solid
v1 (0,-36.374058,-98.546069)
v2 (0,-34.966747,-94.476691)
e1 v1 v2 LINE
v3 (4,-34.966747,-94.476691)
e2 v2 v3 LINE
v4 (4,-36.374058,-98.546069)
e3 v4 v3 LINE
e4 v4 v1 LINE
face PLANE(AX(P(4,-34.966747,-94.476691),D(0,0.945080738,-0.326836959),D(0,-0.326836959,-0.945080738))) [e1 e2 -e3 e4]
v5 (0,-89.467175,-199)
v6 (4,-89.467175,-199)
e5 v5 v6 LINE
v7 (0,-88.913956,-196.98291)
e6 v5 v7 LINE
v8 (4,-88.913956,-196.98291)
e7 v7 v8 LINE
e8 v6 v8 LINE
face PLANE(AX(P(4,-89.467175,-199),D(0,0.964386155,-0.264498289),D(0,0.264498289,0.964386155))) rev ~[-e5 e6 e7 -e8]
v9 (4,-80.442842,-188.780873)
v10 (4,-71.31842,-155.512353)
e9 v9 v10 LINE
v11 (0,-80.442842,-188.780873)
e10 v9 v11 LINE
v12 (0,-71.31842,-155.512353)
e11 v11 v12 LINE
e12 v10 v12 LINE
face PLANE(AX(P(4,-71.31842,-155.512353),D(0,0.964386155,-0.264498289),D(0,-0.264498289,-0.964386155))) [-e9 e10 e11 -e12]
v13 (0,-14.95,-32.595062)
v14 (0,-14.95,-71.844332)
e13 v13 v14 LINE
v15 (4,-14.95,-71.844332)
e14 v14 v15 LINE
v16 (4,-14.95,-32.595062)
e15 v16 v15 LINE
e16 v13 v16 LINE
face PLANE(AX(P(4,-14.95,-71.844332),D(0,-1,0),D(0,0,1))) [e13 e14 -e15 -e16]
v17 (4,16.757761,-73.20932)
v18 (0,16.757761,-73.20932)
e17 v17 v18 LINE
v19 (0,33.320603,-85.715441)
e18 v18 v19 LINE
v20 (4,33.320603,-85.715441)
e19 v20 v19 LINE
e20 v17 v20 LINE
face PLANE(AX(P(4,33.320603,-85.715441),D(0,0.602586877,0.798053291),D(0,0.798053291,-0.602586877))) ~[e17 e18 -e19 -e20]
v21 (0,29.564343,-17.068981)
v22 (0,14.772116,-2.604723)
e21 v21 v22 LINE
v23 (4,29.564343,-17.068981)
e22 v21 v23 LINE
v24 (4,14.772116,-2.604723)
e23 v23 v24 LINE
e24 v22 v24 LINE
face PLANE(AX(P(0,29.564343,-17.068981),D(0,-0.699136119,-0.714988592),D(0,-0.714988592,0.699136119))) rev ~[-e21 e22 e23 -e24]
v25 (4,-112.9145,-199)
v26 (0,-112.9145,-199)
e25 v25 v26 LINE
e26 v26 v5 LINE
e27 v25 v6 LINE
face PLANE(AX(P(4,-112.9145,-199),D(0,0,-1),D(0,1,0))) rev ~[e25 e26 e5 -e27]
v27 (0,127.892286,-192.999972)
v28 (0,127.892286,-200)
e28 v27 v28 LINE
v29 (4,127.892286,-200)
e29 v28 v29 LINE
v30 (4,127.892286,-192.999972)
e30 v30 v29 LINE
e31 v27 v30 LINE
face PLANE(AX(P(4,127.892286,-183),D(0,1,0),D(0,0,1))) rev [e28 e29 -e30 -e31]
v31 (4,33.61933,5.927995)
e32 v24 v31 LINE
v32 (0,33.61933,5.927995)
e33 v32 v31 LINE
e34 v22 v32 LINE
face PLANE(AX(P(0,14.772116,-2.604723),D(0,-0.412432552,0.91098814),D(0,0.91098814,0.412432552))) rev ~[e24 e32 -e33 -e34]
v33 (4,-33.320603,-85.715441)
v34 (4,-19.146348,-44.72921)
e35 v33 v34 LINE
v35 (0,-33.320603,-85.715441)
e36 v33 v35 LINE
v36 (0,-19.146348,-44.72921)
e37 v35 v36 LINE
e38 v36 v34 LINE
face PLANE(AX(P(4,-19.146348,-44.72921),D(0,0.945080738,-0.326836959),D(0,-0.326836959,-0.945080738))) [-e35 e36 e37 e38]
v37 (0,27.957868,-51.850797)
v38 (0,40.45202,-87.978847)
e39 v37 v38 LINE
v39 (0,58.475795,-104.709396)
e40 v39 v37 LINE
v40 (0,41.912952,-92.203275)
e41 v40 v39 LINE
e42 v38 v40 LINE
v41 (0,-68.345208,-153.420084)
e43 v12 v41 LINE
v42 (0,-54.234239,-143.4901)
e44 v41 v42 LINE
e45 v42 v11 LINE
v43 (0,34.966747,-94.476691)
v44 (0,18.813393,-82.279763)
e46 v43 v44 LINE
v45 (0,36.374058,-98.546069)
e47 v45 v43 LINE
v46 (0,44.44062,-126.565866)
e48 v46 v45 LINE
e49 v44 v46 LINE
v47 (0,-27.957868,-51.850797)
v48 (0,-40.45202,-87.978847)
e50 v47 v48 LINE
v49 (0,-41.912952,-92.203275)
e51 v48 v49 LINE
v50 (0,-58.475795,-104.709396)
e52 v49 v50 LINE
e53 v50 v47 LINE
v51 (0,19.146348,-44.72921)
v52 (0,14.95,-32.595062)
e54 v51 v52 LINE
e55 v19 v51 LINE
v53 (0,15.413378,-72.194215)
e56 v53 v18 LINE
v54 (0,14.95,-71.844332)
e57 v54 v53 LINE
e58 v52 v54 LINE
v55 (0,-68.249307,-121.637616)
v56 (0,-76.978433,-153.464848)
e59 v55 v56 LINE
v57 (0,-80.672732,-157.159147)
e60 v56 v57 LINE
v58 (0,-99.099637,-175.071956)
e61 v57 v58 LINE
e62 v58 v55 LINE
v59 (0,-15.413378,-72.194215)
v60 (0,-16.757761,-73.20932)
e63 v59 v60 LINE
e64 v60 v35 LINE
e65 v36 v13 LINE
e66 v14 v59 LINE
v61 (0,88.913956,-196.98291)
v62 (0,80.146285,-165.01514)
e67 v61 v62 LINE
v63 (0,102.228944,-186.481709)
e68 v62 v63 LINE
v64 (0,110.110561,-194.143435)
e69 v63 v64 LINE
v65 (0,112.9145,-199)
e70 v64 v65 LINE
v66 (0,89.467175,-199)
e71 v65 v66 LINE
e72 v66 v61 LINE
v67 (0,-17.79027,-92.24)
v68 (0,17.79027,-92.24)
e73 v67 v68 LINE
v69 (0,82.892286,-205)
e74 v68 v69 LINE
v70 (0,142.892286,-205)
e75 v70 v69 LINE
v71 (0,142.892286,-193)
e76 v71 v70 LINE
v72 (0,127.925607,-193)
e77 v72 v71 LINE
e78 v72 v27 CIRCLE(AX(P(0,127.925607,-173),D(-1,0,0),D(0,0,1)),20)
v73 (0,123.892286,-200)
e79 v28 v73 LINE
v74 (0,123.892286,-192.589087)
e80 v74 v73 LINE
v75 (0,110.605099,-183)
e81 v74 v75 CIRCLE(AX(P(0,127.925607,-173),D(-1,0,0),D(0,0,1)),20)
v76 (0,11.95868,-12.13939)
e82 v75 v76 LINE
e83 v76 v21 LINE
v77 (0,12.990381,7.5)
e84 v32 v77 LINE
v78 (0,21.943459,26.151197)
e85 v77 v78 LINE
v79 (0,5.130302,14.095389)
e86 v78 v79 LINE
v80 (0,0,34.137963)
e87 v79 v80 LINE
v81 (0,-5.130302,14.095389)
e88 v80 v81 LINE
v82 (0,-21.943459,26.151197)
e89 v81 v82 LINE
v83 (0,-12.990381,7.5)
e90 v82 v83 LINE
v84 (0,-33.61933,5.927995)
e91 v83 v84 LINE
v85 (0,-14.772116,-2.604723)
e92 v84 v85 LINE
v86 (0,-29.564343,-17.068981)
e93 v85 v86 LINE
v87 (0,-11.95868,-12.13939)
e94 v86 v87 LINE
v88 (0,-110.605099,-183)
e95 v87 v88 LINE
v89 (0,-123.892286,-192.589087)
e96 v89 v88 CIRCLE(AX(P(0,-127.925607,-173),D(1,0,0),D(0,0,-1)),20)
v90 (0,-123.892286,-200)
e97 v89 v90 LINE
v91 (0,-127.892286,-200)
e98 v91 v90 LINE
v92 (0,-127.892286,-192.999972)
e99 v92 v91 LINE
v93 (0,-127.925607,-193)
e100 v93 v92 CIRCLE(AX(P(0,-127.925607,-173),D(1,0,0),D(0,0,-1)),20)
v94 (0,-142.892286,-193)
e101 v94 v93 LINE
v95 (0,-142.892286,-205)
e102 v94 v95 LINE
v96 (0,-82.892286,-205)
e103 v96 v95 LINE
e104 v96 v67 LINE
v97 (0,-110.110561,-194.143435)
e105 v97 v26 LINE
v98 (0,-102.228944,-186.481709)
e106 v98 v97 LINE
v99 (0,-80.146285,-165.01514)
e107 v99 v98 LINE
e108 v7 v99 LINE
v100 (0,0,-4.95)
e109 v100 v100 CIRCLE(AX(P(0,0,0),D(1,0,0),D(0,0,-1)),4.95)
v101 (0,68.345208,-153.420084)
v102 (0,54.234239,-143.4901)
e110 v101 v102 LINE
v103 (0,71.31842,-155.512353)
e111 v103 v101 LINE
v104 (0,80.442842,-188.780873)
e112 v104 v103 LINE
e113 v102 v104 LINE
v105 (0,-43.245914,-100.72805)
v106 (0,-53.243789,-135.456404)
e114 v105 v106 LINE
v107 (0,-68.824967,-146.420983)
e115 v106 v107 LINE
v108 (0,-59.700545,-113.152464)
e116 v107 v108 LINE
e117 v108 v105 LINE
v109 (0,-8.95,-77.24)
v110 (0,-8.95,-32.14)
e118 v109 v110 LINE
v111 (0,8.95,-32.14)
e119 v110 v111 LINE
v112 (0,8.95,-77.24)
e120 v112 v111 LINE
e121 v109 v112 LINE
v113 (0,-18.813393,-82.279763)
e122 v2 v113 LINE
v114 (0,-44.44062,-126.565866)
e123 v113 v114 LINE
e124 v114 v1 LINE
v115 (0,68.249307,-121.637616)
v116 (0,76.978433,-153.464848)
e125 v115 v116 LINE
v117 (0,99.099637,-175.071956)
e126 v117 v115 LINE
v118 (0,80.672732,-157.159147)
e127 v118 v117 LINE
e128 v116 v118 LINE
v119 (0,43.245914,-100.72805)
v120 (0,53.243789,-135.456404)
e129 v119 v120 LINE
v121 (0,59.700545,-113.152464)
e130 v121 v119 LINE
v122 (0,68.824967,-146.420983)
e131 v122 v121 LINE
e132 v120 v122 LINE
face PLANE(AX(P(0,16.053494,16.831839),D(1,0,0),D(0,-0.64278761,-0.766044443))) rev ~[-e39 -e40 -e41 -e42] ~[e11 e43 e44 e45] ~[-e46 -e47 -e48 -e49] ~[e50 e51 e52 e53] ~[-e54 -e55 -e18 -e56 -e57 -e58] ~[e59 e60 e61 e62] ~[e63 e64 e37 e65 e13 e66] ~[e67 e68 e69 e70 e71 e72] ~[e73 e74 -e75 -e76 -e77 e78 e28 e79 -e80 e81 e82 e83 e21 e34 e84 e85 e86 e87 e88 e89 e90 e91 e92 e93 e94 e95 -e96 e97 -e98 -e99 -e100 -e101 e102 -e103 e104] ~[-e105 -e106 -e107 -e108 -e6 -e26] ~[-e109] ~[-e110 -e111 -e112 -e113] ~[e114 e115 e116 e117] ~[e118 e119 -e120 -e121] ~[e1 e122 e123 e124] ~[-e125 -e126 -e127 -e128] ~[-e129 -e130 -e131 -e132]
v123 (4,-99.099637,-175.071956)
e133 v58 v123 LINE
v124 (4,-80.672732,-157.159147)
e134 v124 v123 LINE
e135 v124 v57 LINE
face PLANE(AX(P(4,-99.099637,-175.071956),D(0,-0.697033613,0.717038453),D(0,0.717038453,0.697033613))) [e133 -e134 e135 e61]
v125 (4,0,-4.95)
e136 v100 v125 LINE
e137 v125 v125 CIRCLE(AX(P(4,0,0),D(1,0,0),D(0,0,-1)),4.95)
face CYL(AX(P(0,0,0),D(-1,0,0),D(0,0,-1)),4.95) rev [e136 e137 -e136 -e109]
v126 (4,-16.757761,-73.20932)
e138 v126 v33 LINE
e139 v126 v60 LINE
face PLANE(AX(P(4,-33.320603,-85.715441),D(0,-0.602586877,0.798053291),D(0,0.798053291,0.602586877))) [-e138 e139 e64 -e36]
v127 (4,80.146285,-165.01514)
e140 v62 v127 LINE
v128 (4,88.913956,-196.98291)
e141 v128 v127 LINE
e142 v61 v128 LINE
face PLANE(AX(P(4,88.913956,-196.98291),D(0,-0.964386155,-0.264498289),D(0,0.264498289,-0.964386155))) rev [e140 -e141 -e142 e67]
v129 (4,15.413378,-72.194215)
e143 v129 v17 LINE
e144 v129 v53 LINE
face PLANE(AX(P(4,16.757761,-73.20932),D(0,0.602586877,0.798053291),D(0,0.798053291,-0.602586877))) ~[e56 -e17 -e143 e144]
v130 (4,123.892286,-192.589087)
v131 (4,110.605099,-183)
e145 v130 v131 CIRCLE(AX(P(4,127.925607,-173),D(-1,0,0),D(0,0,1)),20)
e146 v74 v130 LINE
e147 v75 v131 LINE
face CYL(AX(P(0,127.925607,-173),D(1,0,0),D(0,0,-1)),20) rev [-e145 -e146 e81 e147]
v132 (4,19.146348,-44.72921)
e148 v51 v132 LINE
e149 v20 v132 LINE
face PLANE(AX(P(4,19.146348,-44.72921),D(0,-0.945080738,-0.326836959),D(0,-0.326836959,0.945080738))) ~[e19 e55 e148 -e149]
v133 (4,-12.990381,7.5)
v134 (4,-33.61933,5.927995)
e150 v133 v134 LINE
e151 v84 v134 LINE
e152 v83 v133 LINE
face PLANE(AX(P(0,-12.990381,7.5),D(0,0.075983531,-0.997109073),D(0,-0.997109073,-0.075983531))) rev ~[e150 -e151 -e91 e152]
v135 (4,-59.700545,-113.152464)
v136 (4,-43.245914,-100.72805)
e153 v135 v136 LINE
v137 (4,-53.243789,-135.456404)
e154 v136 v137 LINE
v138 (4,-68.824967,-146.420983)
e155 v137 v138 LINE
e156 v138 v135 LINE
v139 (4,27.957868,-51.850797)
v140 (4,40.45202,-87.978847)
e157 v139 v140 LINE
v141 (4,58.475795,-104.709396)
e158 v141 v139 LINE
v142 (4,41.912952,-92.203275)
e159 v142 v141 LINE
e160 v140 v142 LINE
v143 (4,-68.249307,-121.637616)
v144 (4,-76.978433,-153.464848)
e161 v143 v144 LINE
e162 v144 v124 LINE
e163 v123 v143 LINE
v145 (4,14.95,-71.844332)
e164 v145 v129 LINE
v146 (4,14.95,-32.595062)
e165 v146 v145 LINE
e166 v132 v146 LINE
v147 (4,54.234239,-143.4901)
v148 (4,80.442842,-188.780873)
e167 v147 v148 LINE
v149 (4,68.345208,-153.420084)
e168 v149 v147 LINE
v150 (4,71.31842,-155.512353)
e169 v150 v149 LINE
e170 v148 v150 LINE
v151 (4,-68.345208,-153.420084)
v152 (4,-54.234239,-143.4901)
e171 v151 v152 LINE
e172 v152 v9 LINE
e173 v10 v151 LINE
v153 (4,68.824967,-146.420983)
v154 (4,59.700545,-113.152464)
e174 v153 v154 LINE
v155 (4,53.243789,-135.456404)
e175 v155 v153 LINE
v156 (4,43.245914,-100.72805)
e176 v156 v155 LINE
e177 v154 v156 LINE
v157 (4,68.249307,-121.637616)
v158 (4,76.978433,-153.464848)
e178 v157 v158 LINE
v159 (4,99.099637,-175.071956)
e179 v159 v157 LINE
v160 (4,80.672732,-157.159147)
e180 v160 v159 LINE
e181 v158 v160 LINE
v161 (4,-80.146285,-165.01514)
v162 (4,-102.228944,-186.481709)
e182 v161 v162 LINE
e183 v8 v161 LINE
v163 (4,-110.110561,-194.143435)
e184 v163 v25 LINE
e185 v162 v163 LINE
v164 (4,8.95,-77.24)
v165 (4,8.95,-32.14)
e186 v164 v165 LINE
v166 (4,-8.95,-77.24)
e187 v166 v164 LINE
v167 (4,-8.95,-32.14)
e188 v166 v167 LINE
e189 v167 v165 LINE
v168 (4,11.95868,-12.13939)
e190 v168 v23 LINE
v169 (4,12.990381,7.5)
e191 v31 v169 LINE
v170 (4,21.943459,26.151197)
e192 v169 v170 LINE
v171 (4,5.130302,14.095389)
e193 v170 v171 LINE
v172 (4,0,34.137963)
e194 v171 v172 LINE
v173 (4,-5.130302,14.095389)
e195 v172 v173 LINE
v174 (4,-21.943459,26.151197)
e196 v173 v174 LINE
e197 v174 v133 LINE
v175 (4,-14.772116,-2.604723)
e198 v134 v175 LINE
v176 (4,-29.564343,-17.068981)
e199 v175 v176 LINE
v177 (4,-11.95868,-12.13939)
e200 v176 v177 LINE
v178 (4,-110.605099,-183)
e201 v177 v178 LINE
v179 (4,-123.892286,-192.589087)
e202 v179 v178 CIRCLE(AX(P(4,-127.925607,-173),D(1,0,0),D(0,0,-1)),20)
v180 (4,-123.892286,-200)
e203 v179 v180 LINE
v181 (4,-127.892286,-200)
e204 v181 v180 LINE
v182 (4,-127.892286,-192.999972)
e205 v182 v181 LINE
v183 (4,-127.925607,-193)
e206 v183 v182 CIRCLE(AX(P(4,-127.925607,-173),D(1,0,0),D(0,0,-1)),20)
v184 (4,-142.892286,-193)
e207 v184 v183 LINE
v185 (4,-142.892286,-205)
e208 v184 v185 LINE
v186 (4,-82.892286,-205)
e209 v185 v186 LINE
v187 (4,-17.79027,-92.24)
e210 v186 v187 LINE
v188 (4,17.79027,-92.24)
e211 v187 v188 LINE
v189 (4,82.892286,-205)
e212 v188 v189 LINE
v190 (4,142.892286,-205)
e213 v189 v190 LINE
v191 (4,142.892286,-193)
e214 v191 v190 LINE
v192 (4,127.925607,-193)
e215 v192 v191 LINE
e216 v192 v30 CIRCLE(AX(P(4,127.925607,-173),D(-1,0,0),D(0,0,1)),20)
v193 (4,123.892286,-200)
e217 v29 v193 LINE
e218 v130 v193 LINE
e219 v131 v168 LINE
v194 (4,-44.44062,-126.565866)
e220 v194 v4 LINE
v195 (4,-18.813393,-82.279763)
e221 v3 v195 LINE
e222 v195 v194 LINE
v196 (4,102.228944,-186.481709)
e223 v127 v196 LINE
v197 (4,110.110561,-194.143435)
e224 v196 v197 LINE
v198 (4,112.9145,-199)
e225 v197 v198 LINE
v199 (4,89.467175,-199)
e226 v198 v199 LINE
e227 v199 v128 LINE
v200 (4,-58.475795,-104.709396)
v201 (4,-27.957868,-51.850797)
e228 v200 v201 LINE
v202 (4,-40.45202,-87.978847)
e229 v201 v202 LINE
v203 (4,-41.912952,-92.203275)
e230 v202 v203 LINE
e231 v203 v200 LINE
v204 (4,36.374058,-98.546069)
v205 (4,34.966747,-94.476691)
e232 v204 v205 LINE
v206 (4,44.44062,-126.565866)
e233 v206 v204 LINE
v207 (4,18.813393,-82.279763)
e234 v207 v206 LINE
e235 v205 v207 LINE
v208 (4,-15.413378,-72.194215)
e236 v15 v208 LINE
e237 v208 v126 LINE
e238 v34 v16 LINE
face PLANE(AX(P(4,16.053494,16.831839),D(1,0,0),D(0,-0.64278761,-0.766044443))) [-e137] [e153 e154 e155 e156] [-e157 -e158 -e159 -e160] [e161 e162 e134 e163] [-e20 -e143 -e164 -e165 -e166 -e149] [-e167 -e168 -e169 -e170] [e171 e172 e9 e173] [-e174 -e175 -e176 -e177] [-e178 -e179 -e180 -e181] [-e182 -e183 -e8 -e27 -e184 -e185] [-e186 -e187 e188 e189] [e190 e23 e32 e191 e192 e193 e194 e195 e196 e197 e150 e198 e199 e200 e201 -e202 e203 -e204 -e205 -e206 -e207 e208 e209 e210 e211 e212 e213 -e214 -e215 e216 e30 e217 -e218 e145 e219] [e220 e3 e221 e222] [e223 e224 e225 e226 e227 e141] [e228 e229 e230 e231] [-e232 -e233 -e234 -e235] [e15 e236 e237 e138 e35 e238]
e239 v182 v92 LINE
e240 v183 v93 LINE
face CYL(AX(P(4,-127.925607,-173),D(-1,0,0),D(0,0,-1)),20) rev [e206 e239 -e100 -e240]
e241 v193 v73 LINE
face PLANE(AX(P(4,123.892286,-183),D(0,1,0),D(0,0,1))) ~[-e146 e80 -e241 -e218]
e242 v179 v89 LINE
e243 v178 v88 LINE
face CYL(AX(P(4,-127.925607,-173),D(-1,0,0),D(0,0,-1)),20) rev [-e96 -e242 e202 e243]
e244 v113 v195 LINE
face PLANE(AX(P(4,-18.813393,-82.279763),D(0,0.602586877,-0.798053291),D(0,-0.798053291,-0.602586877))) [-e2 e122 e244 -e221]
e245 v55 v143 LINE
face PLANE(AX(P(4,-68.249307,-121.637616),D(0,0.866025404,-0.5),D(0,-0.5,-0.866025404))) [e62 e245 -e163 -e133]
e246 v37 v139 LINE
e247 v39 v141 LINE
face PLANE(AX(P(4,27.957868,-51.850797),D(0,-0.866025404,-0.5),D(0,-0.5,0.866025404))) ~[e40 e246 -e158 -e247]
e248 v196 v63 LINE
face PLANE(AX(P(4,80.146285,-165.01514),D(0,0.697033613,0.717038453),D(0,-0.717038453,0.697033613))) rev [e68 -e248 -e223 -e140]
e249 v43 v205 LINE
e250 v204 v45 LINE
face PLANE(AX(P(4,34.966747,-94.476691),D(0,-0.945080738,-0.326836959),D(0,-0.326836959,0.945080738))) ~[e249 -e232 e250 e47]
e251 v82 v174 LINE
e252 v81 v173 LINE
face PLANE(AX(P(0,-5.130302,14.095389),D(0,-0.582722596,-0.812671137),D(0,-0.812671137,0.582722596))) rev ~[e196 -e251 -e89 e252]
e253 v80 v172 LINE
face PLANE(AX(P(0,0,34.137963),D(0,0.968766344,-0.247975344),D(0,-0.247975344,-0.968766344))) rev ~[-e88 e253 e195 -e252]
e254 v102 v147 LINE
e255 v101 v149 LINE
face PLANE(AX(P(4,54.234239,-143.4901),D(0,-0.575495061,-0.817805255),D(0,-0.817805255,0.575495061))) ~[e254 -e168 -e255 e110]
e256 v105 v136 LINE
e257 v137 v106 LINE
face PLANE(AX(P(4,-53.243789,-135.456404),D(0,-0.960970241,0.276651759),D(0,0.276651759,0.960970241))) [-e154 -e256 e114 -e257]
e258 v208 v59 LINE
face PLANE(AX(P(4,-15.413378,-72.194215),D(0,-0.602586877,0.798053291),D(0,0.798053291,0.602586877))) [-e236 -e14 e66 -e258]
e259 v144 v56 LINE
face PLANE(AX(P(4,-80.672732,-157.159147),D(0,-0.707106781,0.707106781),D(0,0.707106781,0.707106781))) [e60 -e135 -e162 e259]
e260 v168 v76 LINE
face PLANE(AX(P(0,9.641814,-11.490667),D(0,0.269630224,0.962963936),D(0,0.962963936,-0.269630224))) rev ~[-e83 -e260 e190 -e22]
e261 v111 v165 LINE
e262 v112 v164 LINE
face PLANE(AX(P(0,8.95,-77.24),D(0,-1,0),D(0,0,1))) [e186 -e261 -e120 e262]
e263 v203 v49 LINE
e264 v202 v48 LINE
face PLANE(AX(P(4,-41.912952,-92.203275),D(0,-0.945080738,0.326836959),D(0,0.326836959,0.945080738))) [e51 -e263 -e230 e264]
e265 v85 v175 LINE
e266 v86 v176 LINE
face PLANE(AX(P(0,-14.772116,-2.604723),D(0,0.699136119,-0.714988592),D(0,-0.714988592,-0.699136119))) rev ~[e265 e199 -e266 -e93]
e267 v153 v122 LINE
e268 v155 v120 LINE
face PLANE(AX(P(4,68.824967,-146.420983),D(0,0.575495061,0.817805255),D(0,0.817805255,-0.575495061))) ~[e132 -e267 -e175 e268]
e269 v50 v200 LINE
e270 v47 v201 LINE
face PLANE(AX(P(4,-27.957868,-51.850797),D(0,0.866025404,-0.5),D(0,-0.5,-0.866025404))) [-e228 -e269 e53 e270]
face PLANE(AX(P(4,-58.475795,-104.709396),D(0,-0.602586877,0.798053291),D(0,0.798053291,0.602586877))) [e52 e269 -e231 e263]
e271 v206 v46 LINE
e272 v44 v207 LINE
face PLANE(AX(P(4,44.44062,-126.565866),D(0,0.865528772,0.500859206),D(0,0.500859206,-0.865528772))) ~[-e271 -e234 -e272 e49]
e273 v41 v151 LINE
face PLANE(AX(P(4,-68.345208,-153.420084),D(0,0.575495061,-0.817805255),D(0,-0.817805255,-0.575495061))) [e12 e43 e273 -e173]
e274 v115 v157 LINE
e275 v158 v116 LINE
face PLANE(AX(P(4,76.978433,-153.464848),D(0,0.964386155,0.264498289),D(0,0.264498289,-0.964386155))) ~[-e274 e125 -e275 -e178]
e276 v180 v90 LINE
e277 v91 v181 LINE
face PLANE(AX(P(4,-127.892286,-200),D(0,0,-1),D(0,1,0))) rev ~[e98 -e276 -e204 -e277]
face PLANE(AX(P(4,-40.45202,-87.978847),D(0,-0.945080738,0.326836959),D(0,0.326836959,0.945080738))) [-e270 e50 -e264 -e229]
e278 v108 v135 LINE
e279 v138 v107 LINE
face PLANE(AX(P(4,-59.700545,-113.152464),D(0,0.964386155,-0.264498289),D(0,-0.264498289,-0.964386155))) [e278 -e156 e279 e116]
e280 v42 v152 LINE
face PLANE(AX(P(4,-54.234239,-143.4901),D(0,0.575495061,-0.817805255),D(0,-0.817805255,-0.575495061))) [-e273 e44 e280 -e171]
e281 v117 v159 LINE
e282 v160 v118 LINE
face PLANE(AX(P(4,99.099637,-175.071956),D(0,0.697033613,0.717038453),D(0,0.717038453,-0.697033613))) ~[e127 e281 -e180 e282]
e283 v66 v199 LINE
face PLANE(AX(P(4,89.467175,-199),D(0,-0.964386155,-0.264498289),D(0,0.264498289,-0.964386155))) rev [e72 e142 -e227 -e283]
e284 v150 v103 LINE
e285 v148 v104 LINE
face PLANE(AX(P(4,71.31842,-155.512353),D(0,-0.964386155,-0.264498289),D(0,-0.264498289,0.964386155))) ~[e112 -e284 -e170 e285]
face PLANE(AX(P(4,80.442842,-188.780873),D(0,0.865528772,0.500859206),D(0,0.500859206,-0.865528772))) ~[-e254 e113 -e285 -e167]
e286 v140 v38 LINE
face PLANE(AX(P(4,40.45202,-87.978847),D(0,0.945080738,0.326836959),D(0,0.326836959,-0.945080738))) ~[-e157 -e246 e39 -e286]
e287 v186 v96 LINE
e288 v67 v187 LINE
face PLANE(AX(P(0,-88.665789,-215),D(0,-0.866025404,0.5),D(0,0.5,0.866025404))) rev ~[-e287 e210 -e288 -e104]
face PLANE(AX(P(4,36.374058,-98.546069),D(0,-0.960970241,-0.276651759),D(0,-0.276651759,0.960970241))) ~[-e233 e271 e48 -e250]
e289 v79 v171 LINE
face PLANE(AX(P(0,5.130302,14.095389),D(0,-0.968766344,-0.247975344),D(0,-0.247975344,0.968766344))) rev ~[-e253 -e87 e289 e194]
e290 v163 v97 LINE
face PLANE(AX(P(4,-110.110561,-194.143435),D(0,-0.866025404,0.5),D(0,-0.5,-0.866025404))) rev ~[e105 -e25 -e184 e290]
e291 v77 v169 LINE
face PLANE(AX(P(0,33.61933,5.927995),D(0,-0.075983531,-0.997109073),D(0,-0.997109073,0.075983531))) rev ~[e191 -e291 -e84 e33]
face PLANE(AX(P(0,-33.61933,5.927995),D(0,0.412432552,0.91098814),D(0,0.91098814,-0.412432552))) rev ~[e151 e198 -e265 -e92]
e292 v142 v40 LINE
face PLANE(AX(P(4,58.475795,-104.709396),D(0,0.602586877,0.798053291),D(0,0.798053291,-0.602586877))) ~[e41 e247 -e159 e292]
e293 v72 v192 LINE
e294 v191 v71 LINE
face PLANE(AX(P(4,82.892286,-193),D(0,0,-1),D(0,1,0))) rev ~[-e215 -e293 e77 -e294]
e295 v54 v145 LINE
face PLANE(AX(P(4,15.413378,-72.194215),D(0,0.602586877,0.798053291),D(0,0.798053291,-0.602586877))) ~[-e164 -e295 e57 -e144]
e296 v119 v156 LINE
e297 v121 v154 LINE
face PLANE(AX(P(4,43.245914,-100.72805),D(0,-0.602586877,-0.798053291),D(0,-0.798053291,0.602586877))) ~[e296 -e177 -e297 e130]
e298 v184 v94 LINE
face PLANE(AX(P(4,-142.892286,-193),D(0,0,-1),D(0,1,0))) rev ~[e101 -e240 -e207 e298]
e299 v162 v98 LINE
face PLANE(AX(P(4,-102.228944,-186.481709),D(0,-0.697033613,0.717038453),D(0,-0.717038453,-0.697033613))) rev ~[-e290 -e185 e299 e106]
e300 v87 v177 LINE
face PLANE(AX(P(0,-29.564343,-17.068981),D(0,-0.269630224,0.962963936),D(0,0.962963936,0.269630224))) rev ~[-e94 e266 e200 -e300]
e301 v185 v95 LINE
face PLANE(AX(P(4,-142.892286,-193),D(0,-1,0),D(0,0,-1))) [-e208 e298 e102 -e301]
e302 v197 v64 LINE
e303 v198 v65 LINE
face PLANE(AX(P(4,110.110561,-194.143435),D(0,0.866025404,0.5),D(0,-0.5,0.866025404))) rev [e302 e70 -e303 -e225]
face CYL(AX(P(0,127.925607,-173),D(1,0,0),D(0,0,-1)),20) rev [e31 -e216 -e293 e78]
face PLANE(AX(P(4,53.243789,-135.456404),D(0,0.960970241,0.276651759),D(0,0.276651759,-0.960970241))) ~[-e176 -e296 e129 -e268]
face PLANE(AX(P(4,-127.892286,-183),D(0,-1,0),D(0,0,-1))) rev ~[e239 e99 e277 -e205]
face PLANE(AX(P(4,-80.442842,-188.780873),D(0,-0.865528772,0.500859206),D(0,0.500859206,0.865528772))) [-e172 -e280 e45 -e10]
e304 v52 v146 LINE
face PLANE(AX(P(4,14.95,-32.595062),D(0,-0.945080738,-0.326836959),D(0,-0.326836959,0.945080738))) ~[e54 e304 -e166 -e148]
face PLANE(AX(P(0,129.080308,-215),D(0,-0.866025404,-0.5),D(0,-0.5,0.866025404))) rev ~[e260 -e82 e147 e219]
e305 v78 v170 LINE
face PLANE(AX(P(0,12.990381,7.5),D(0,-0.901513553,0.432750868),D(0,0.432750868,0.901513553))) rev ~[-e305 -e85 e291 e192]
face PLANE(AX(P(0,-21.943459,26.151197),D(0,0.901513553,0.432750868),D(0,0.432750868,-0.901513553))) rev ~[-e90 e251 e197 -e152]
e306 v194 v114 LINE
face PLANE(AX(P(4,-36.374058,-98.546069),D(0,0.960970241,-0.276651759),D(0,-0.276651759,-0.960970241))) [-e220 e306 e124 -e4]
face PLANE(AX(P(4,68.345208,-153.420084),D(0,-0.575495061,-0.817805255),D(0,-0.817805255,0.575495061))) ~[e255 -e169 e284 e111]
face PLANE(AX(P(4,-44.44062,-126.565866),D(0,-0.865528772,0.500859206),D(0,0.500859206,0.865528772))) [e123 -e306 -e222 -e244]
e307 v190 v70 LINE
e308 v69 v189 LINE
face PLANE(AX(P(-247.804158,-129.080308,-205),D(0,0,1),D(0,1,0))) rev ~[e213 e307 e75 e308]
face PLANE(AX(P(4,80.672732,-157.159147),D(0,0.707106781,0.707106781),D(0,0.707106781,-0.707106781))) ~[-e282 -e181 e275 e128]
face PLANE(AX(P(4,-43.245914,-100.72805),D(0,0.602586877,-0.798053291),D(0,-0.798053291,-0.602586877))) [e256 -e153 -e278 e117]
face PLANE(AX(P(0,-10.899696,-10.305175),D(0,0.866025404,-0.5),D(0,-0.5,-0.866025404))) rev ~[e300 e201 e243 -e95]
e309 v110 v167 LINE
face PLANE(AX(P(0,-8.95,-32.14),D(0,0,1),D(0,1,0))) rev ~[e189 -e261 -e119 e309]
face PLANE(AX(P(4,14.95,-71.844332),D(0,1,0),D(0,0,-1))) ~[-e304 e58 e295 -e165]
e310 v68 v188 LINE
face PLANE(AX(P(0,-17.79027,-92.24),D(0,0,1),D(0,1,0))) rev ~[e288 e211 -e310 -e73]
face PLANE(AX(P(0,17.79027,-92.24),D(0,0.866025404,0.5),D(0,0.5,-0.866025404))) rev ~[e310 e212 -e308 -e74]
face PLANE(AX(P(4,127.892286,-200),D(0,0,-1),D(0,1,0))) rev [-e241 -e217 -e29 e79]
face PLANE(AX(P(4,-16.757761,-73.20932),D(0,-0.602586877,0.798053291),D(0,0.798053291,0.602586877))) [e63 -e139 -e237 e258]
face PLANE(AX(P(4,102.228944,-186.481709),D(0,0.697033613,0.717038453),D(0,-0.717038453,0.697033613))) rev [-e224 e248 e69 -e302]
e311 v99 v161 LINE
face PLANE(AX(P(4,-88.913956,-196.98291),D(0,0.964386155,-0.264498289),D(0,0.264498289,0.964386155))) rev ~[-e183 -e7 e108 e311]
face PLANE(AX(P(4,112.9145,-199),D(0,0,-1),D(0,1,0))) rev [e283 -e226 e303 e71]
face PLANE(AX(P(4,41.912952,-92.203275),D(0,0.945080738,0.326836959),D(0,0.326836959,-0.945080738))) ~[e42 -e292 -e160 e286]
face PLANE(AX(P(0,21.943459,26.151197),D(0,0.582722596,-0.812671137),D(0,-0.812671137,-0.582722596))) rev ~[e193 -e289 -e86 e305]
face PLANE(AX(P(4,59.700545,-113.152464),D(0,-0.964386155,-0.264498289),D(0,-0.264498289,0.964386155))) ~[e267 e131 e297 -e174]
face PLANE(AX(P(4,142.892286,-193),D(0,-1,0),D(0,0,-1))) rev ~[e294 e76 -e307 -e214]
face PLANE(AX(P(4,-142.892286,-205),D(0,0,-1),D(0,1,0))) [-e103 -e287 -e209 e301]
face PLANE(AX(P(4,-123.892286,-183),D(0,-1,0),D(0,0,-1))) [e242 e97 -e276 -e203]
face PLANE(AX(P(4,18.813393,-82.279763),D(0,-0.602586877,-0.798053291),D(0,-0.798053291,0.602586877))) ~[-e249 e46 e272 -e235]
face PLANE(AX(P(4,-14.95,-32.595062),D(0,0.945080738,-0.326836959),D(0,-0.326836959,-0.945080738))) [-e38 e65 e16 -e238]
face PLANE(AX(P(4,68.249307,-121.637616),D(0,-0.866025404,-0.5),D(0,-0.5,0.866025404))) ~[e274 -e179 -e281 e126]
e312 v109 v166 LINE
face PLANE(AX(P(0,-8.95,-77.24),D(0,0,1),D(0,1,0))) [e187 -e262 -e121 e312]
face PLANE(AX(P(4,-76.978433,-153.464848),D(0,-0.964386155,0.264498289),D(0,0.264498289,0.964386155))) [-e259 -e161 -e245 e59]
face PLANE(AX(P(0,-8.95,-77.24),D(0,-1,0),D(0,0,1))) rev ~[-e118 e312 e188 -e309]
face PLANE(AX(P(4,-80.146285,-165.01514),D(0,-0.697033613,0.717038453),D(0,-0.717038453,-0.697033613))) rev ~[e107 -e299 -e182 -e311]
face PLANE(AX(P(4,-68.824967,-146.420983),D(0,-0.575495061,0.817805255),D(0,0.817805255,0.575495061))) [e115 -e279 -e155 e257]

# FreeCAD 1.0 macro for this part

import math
import FreeCAD as App
import Part
import Sketcher

V = App.Vector
Q = App.Units.Quantity


def edges_at(feature, points):
    """Names of the edges that pass closest to the given points."""
    edges = feature.Shape.Edges
    near = lambda p: min(range(len(edges)), key=lambda i: edges[i].distToShape(Part.Vertex(*p))[0])
    return sorted({f"Edge{near(p) + 1}" for p in points})

doc = App.newDocument("Part")
body = doc.addObject("PartDesign::Body", "Body")

sketch1 = body.newObject("Sketcher::SketchObject", "Sketch")
sketch1.AttachmentSupport = (doc.getObject("YZ_Plane"), [""])
sketch1.MapMode = "FlatFace"
sketch1.addGeometry(Part.LineSegment(V(-10.899696, -10.305175, 0), V(-129.080308, -215, 0)), False)
sketch1.addGeometry(Part.LineSegment(V(-129.080308, -215, 0), V(-88.665789, -215, 0)), False)
sketch1.addGeometry(Part.LineSegment(V(-88.665789, -215, 0), V(-17.79027, -92.24, 0)), False)
sketch1.addGeometry(Part.LineSegment(V(-17.79027, -92.24, 0), V(17.79027, -92.24, 0)), False)
sketch1.addGeometry(Part.LineSegment(V(17.79027, -92.24, 0), V(88.665789, -215, 0)), False)
sketch1.addGeometry(Part.LineSegment(V(88.665789, -215, 0), V(129.080308, -215, 0)), False)
sketch1.addGeometry(Part.LineSegment(V(129.080308, -215, 0), V(10.899696, -10.305175, 0)), False)
sketch1.addGeometry(Part.ArcOfCircle(Part.Circle(V(0, 0, 0), V(0, 0, 1), 15), math.radians(-43.39402), math.radians(223.39402)), False)
sketch1.addGeometry(Part.LineSegment(V(8.95, -77.24, 0), V(-8.95, -77.24, 0)), False)
sketch1.addGeometry(Part.LineSegment(V(-8.95, -77.24, 0), V(-8.95, -32.14, 0)), False)
sketch1.addGeometry(Part.LineSegment(V(-8.95, -32.14, 0), V(8.95, -32.14, 0)), False)
sketch1.addGeometry(Part.LineSegment(V(8.95, -32.14, 0), V(8.95, -77.24, 0)), False)
sketch1.addGeometry(Part.Circle(V(0, 0, 0), V(0, 0, 1), 4.95), False)
sketch1.addConstraint(Sketcher.Constraint("Coincident", 0, 2, 1, 1))
sketch1.addConstraint(Sketcher.Constraint("Coincident", 1, 2, 2, 1))
sketch1.addConstraint(Sketcher.Constraint("Coincident", 2, 2, 3, 1))
sketch1.addConstraint(Sketcher.Constraint("Coincident", 3, 2, 4, 1))
sketch1.addConstraint(Sketcher.Constraint("Coincident", 4, 2, 5, 1))
sketch1.addConstraint(Sketcher.Constraint("Coincident", 5, 2, 6, 1))
sketch1.addConstraint(Sketcher.Constraint("Coincident", 6, 2, 7, 1))
sketch1.addConstraint(Sketcher.Constraint("Coincident", 7, 2, 0, 1))
sketch1.addConstraint(Sketcher.Constraint("Coincident", 8, 2, 9, 1))
sketch1.addConstraint(Sketcher.Constraint("Coincident", 9, 2, 10, 1))
sketch1.addConstraint(Sketcher.Constraint("Coincident", 10, 2, 11, 1))
sketch1.addConstraint(Sketcher.Constraint("Coincident", 11, 2, 8, 1))
sketch1.addConstraint(Sketcher.Constraint("Horizontal", 1))
sketch1.addConstraint(Sketcher.Constraint("Horizontal", 3))
sketch1.addConstraint(Sketcher.Constraint("Horizontal", 5))
sketch1.addConstraint(Sketcher.Constraint("Horizontal", 8))
sketch1.addConstraint(Sketcher.Constraint("Vertical", 9))
sketch1.addConstraint(Sketcher.Constraint("Horizontal", 10))
sketch1.addConstraint(Sketcher.Constraint("Vertical", 11))
sketch1.addConstraint(Sketcher.Constraint("Coincident", 7, 3, -1, 1))
sketch1.addConstraint(Sketcher.Constraint("Coincident", 12, 3, -1, 1))
sketch1.addConstraint(Sketcher.Constraint("Symmetric", 1, 2, 4, 2, -2))
sketch1.addConstraint(Sketcher.Constraint("Parallel", 0, 2))
sketch1.addConstraint(Sketcher.Constraint("Parallel", 4, 6))
sketch1.addConstraint(Sketcher.Constraint("Horizontal", 6, 2, 7, 2))
sketch1.addConstraint(Sketcher.Constraint("Equal", 1, 5))
sketch1.addConstraint(Sketcher.Constraint("Radius", 7, Q("15 mm")))
sketch1.addConstraint(Sketcher.Constraint("Diameter", 12, Q("9.9 mm")))
sketch1.addConstraint(Sketcher.Constraint("Angle", 0, Q("-120 deg")))
sketch1.addConstraint(Sketcher.Constraint("DistanceX", 8, 2, 8, 1, Q("17.9 mm")))
sketch1.addConstraint(Sketcher.Constraint("DistanceY", 9, 1, 9, 2, Q("45.1 mm")))
sketch1.addConstraint(Sketcher.Constraint("DistanceY", 0, 2, -1, 1, Q("215 mm")))
sketch1.addConstraint(Sketcher.Constraint("DistanceY", 2, 2, 8, 2, Q("15 mm")))
sketch1.addConstraint(Sketcher.Constraint("DistanceY", 2, 2, -1, 1, Q("92.24 mm")))
sketch1.addConstraint(Sketcher.Constraint("DistanceX", 8, 2, -1, 1, Q("8.95 mm")))
sketch1.addConstraint(Sketcher.Constraint("DistanceX", 1, 1, 1, 2, Q("40.414519 mm")))
sketch1.addConstraint(Sketcher.Constraint("DistanceX", 3, 1, 3, 2, Q("35.58054 mm")))
pad1 = body.newObject("PartDesign::Pad", "Pad")
pad1.Profile = sketch1
pad1.Length = 4

sketch2 = body.newObject("Sketcher::SketchObject", "Sketch001")
sketch2.AttachmentSupport = (doc.getObject("YZ_Plane"), [""])
sketch2.MapMode = "FlatFace"
sketch2.AttachmentOffset = App.Placement(V(0, 0, 4), App.Rotation())
sketch2.addGeometry(Part.LineSegment(V(-129.080308, -205, 0), V(-129.080308, -215, 0)), False)
sketch2.addGeometry(Part.LineSegment(V(-129.080308, -215, 0), V(129.080308, -215, 0)), False)
sketch2.addGeometry(Part.LineSegment(V(129.080308, -215, 0), V(129.080308, -205, 0)), False)
sketch2.addGeometry(Part.LineSegment(V(129.080308, -205, 0), V(-129.080308, -205, 0)), False)
sketch2.addConstraint(Sketcher.Constraint("Coincident", 0, 2, 1, 1))
sketch2.addConstraint(Sketcher.Constraint("Coincident", 1, 2, 2, 1))
sketch2.addConstraint(Sketcher.Constraint("Coincident", 2, 2, 3, 1))
sketch2.addConstraint(Sketcher.Constraint("Coincident", 3, 2, 0, 1))
sketch2.addConstraint(Sketcher.Constraint("Vertical", 0))
sketch2.addConstraint(Sketcher.Constraint("Horizontal", 1))
sketch2.addConstraint(Sketcher.Constraint("Vertical", 2))
sketch2.addConstraint(Sketcher.Constraint("Horizontal", 3))
sketch2.addConstraint(Sketcher.Constraint("DistanceY", 0, 2, 0, 1, Q("10 mm")))
sketch2.addConstraint(Sketcher.Constraint("DistanceY", 0, 2, -1, 1, Q("215 mm")))
sketch2.addConstraint(Sketcher.Constraint("DistanceX", 1, 1, 1, 2, Q("258.160616 mm")))
sketch2.addConstraint(Sketcher.Constraint("DistanceX", 0, 2, -1, 1, Q("129.080308 mm")))
pocket1 = body.newObject("PartDesign::Pocket", "Pocket")
pocket1.Profile = sketch2
pocket1.Type = "ThroughAll"
pocket1.Midplane = True

sketch3 = body.newObject("Sketcher::SketchObject", "Sketch002")
sketch3.AttachmentSupport = (doc.getObject("YZ_Plane"), [""])
sketch3.MapMode = "FlatFace"
sketch3.AttachmentOffset = App.Placement(V(0, 0, 4), App.Rotation())
sketch3.addGeometry(Part.LineSegment(V(-82.892286, -193, 0), V(-142.892286, -193, 0)), False)
sketch3.addGeometry(Part.LineSegment(V(-142.892286, -193, 0), V(-142.892286, -205, 0)), False)
sketch3.addGeometry(Part.LineSegment(V(-142.892286, -205, 0), V(-82.892286, -205, 0)), False)
sketch3.addGeometry(Part.LineSegment(V(-82.892286, -205, 0), V(-82.892286, -193, 0)), False)
sketch3.addGeometry(Part.LineSegment(V(142.892286, -193, 0), V(82.892286, -193, 0)), False)
sketch3.addGeometry(Part.LineSegment(V(82.892286, -193, 0), V(82.892286, -205, 0)), False)
sketch3.addGeometry(Part.LineSegment(V(82.892286, -205, 0), V(142.892286, -205, 0)), False)
sketch3.addGeometry(Part.LineSegment(V(142.892286, -205, 0), V(142.892286, -193, 0)), False)
sketch3.addConstraint(Sketcher.Constraint("Coincident", 0, 2, 1, 1))
sketch3.addConstraint(Sketcher.Constraint("Coincident", 1, 2, 2, 1))
sketch3.addConstraint(Sketcher.Constraint("Coincident", 2, 2, 3, 1))
sketch3.addConstraint(Sketcher.Constraint("Coincident", 3, 2, 0, 1))
sketch3.addConstraint(Sketcher.Constraint("Coincident", 4, 2, 5, 1))
sketch3.addConstraint(Sketcher.Constraint("Coincident", 5, 2, 6, 1))
sketch3.addConstraint(Sketcher.Constraint("Coincident", 6, 2, 7, 1))
sketch3.addConstraint(Sketcher.Constraint("Coincident", 7, 2, 4, 1))
sketch3.addConstraint(Sketcher.Constraint("Horizontal", 0))
sketch3.addConstraint(Sketcher.Constraint("Vertical", 1))
sketch3.addConstraint(Sketcher.Constraint("Horizontal", 2))
sketch3.addConstraint(Sketcher.Constraint("Vertical", 3))
sketch3.addConstraint(Sketcher.Constraint("Horizontal", 4))
sketch3.addConstraint(Sketcher.Constraint("Vertical", 5))
sketch3.addConstraint(Sketcher.Constraint("Horizontal", 6))
sketch3.addConstraint(Sketcher.Constraint("Vertical", 7))
sketch3.addConstraint(Sketcher.Constraint("Symmetric", 3, 2, 4, 2, -2))
sketch3.addConstraint(Sketcher.Constraint("Symmetric", 1, 2, 6, 2, -2))
sketch3.addConstraint(Sketcher.Constraint("DistanceX", 0, 2, 0, 1, Q("60 mm")))
sketch3.addConstraint(Sketcher.Constraint("DistanceY", 1, 2, 1, 1, Q("12 mm")))
sketch3.addConstraint(Sketcher.Constraint("DistanceY", 0, 2, -1, 1, Q("193 mm")))
sketch3.addConstraint(Sketcher.Constraint("DistanceX", 0, 2, -1, 1, Q("142.892286 mm")))
pad2 = body.newObject("PartDesign::Pad", "Pad001")
pad2.Profile = sketch3
pad2.Length = 4
pad2.Reversed = True
doc.recompute()

fillet = body.newObject("PartDesign::Fillet", "Fillet")
fillet.Base = (pad2, edges_at(pad2, [(2, -116.379, -193), (2, 116.379, -193)]))
fillet.Radius = 20

sketch4 = body.newObject("Sketcher::SketchObject", "Sketch003")
sketch4.AttachmentSupport = (doc.getObject("YZ_Plane"), [""])
sketch4.MapMode = "FlatFace"
sketch4.addGeometry(Part.LineSegment(V(5.130302, 14.095389, 0), V(0, 34.137963, 0)), False)
sketch4.addGeometry(Part.LineSegment(V(0, 34.137963, 0), V(-5.130302, 14.095389, 0)), False)
sketch4.addGeometry(Part.ArcOfCircle(Part.Circle(V(0, 0, 0), V(0, 0, 1), 15), math.radians(90), math.radians(110)), False)
sketch4.addGeometry(Part.ArcOfCircle(Part.Circle(V(0, 0, 0), V(0, 0, 1), 15), math.radians(70), math.radians(90)), False)
sketch4.addConstraint(Sketcher.Constraint("Coincident", 0, 2, 1, 1))
sketch4.addConstraint(Sketcher.Constraint("Coincident", 1, 2, 2, 2))
sketch4.addConstraint(Sketcher.Constraint("Tangent", 2, 1, 3, 2))
sketch4.addConstraint(Sketcher.Constraint("Coincident", 3, 1, 0, 1))
sketch4.addConstraint(Sketcher.Constraint("Coincident", 2, 3, -1, 1))
sketch4.addConstraint(Sketcher.Constraint("Equal", 2, 3))
sketch4.addConstraint(Sketcher.Constraint("PointOnObject", 0, 2, -2))
sketch4.addConstraint(Sketcher.Constraint("PointOnObject", 2, 1, -2))
sketch4.addConstraint(Sketcher.Constraint("Horizontal", 1, 2, 3, 1))
sketch4.addConstraint(Sketcher.Constraint("Radius", 2, Q("15 mm")))
sketch4.addConstraint(Sketcher.Constraint("Distance", 0, Q("20.688759 mm")))
sketch4.addConstraint(Sketcher.Constraint("DistanceY", -1, 1, 1, 2, Q("14.095389 mm")))
pad3 = body.newObject("PartDesign::Pad", "Pad002")
pad3.Profile = sketch4
pad3.Length = 4
doc.recompute()

polarpattern = body.newObject("PartDesign::PolarPattern", "PolarPattern")
polarpattern.Originals = [pad3]
polarpattern.Axis = (doc.getObject("X_Axis"), [""])
polarpattern.Angle = 360
polarpattern.Occurrences = 9
body.Tip = polarpattern

sketch5 = body.newObject("Sketcher::SketchObject", "Sketch004")
sketch5.AttachmentSupport = (doc.getObject("YZ_Plane"), [""])
sketch5.MapMode = "FlatFace"
sketch5.AttachmentOffset = App.Placement(V(0, 0, 4), App.Rotation())
sketch5.addGeometry(Part.LineSegment(V(-123.892286, -183, 0), V(-127.892286, -183, 0)), False)
sketch5.addGeometry(Part.LineSegment(V(-127.892286, -183, 0), V(-127.892286, -200, 0)), False)
sketch5.addGeometry(Part.LineSegment(V(-127.892286, -200, 0), V(-123.892286, -200, 0)), False)
sketch5.addGeometry(Part.LineSegment(V(-123.892286, -200, 0), V(-123.892286, -183, 0)), False)
sketch5.addConstraint(Sketcher.Constraint("Coincident", 0, 2, 1, 1))
sketch5.addConstraint(Sketcher.Constraint("Coincident", 1, 2, 2, 1))
sketch5.addConstraint(Sketcher.Constraint("Coincident", 2, 2, 3, 1))
sketch5.addConstraint(Sketcher.Constraint("Coincident", 3, 2, 0, 1))
sketch5.addConstraint(Sketcher.Constraint("Horizontal", 0))
sketch5.addConstraint(Sketcher.Constraint("Vertical", 1))
sketch5.addConstraint(Sketcher.Constraint("Horizontal", 2))
sketch5.addConstraint(Sketcher.Constraint("Vertical", 3))
sketch5.addConstraint(Sketcher.Constraint("DistanceX", 0, 2, 0, 1, Q("4 mm")))
sketch5.addConstraint(Sketcher.Constraint("DistanceY", 1, 2, 1, 1, Q("17 mm")))
sketch5.addConstraint(Sketcher.Constraint("DistanceY", 0, 2, -1, 1, Q("183 mm")))
sketch5.addConstraint(Sketcher.Constraint("DistanceX", 0, 2, -1, 1, Q("127.892286 mm")))
pocket2 = body.newObject("PartDesign::Pocket", "Pocket001")
pocket2.Profile = sketch5
pocket2.Length = 501.836795
pocket2.Midplane = True
doc.recompute()

mirrored = body.newObject("PartDesign::Mirrored", "Mirrored")
mirrored.Originals = [pocket2]
mirrored.MirrorPlane = (doc.getObject("XZ_Plane"), [""])
body.Tip = mirrored

sketch6 = body.newObject("Sketcher::SketchObject", "Sketch005")
sketch6.AttachmentSupport = (doc.getObject("YZ_Plane"), [""])
sketch6.MapMode = "FlatFace"
sketch6.AttachmentOffset = App.Placement(V(0, 0, 4), App.Rotation())
sketch6.addGeometry(Part.LineSegment(V(-15.413378, -72.194215, 0), V(-14.95, -71.844332, 0)), False)
sketch6.addGeometry(Part.LineSegment(V(-14.95, -71.844332, 0), V(-14.95, -32.595062, 0)), False)
sketch6.addGeometry(Part.LineSegment(V(-14.95, -32.595062, 0), V(-19.146348, -44.72921, 0)), False)
sketch6.addGeometry(Part.LineSegment(V(-19.146348, -44.72921, 0), V(-33.320603, -85.715441, 0)), False)
sketch6.addGeometry(Part.LineSegment(V(-33.320603, -85.715441, 0), V(-16.757761, -73.20932, 0)), False)
sketch6.addGeometry(Part.LineSegment(V(-16.757761, -73.20932, 0), V(-15.413378, -72.194215, 0)), False)
sketch6.addGeometry(Part.LineSegment(V(-40.45202, -87.978847, 0), V(-27.957868, -51.850797, 0)), False)
sketch6.addGeometry(Part.LineSegment(V(-27.957868, -51.850797, 0), V(-58.475795, -104.709396, 0)), False)
sketch6.addGeometry(Part.LineSegment(V(-58.475795, -104.709396, 0), V(-41.912952, -92.203275, 0)), False)
sketch6.addGeometry(Part.LineSegment(V(-41.912952, -92.203275, 0), V(-40.45202, -87.978847, 0)), False)
sketch6.addGeometry(Part.LineSegment(V(-44.44062, -126.565866, 0), V(-18.813393, -82.279763, 0)), False)
sketch6.addGeometry(Part.LineSegment(V(-18.813393, -82.279763, 0), V(-34.966747, -94.476691, 0)), False)
sketch6.addGeometry(Part.LineSegment(V(-34.966747, -94.476691, 0), V(-36.374058, -98.546069, 0)), False)
sketch6.addGeometry(Part.LineSegment(V(-36.374058, -98.546069, 0), V(-44.44062, -126.565866, 0)), False)
sketch6.addGeometry(Part.LineSegment(V(-53.243789, -135.456404, 0), V(-43.245914, -100.72805, 0)), False)
sketch6.addGeometry(Part.LineSegment(V(-43.245914, -100.72805, 0), V(-59.700545, -113.152464, 0)), False)
sketch6.addGeometry(Part.LineSegment(V(-59.700545, -113.152464, 0), V(-68.824967, -146.420983, 0)), False)
sketch6.addGeometry(Part.LineSegment(V(-68.824967, -146.420983, 0), V(-53.243789, -135.456404, 0)), False)
sketch6.addGeometry(Part.LineSegment(V(-80.442842, -188.780873, 0), V(-54.234239, -143.4901, 0)), False)
sketch6.addGeometry(Part.LineSegment(V(-54.234239, -143.4901, 0), V(-68.345208, -153.420084, 0)), False)
sketch6.addGeometry(Part.LineSegment(V(-68.345208, -153.420084, 0), V(-71.31842, -155.512353, 0)), False)
sketch6.addGeometry(Part.LineSegment(V(-71.31842, -155.512353, 0), V(-80.442842, -188.780873, 0)), False)
sketch6.addGeometry(Part.LineSegment(V(-76.978433, -153.464848, 0), V(-68.249307, -121.637616, 0)), False)
sketch6.addGeometry(Part.LineSegment(V(-68.249307, -121.637616, 0), V(-99.099637, -175.071956, 0)), False)
sketch6.addGeometry(Part.LineSegment(V(-99.099637, -175.071956, 0), V(-80.672732, -157.159147, 0)), False)
sketch6.addGeometry(Part.LineSegment(V(-80.672732, -157.159147, 0), V(-76.978433, -153.464848, 0)), False)
sketch6.addGeometry(Part.LineSegment(V(-112.9145, -199, 0), V(-89.467175, -199, 0)), False)
sketch6.addGeometry(Part.LineSegment(V(-89.467175, -199, 0), V(-88.913956, -196.98291, 0)), False)
sketch6.addGeometry(Part.LineSegment(V(-88.913956, -196.98291, 0), V(-80.146285, -165.01514, 0)), False)
sketch6.addGeometry(Part.LineSegment(V(-80.146285, -165.01514, 0), V(-102.228944, -186.481709, 0)), False)
sketch6.addGeometry(Part.LineSegment(V(-102.228944, -186.481709, 0), V(-110.110561, -194.143435, 0)), False)
sketch6.addGeometry(Part.LineSegment(V(-110.110561, -194.143435, 0), V(-112.9145, -199, 0)), False)
sketch6.addConstraint(Sketcher.Constraint("Coincident", 0, 2, 1, 1))
sketch6.addConstraint(Sketcher.Constraint("Coincident", 1, 2, 2, 1))
sketch6.addConstraint(Sketcher.Constraint("Coincident", 2, 2, 3, 1))
sketch6.addConstraint(Sketcher.Constraint("Coincident", 3, 2, 4, 1))
sketch6.addConstraint(Sketcher.Constraint("Coincident", 4, 2, 5, 1))
sketch6.addConstraint(Sketcher.Constraint("Coincident", 5, 2, 0, 1))
sketch6.addConstraint(Sketcher.Constraint("Coincident", 6, 2, 7, 1))
sketch6.addConstraint(Sketcher.Constraint("Coincident", 7, 2, 8, 1))
sketch6.addConstraint(Sketcher.Constraint("Coincident", 8, 2, 9, 1))
sketch6.addConstraint(Sketcher.Constraint("Coincident", 9, 2, 6, 1))
sketch6.addConstraint(Sketcher.Constraint("Coincident", 10, 2, 11, 1))
sketch6.addConstraint(Sketcher.Constraint("Coincident", 11, 2, 12, 1))
sketch6.addConstraint(Sketcher.Constraint("Coincident", 12, 2, 13, 1))
sketch6.addConstraint(Sketcher.Constraint("Coincident", 13, 2, 10, 1))
sketch6.addConstraint(Sketcher.Constraint("Coincident", 14, 2, 15, 1))
sketch6.addConstraint(Sketcher.Constraint("Coincident", 15, 2, 16, 1))
sketch6.addConstraint(Sketcher.Constraint("Coincident", 16, 2, 17, 1))
sketch6.addConstraint(Sketcher.Constraint("Coincident", 17, 2, 14, 1))
sketch6.addConstraint(Sketcher.Constraint("Coincident", 18, 2, 19, 1))
sketch6.addConstraint(Sketcher.Constraint("Coincident", 19, 2, 20, 1))
sketch6.addConstraint(Sketcher.Constraint("Coincident", 20, 2, 21, 1))
sketch6.addConstraint(Sketcher.Constraint("Coincident", 21, 2, 18, 1))
sketch6.addConstraint(Sketcher.Constraint("Coincident", 22, 2, 23, 1))
sketch6.addConstraint(Sketcher.Constraint("Coincident", 23, 2, 24, 1))
sketch6.addConstraint(Sketcher.Constraint("Coincident", 24, 2, 25, 1))
sketch6.addConstraint(Sketcher.Constraint("Coincident", 25, 2, 22, 1))
sketch6.addConstraint(Sketcher.Constraint("Coincident", 26, 2, 27, 1))
sketch6.addConstraint(Sketcher.Constraint("Coincident", 27, 2, 28, 1))
sketch6.addConstraint(Sketcher.Constraint("Coincident", 28, 2, 29, 1))
sketch6.addConstraint(Sketcher.Constraint("Coincident", 29, 2, 30, 1))
sketch6.addConstraint(Sketcher.Constraint("Coincident", 30, 2, 31, 1))
sketch6.addConstraint(Sketcher.Constraint("Coincident", 31, 2, 26, 1))
sketch6.addConstraint(Sketcher.Constraint("Vertical", 1))
sketch6.addConstraint(Sketcher.Constraint("Horizontal", 26))
sketch6.addConstraint(Sketcher.Constraint("Parallel", 2, 3))
sketch6.addConstraint(Sketcher.Constraint("Parallel", 0, 4))
sketch6.addConstraint(Sketcher.Constraint("Parallel", 4, 5))
sketch6.addConstraint(Sketcher.Constraint("Parallel", 3, 6))
sketch6.addConstraint(Sketcher.Constraint("Parallel", 5, 8))
sketch6.addConstraint(Sketcher.Constraint("Parallel", 6, 9))
sketch6.addConstraint(Sketcher.Constraint("Parallel", 8, 11))
sketch6.addConstraint(Sketcher.Constraint("Parallel", 9, 12))
sketch6.addConstraint(Sketcher.Constraint("Parallel", 13, 14))
sketch6.addConstraint(Sketcher.Constraint("Parallel", 11, 15))
sketch6.addConstraint(Sketcher.Constraint("Parallel", 10, 18))
sketch6.addConstraint(Sketcher.Constraint("Parallel", 17, 19))
sketch6.addConstraint(Sketcher.Constraint("Parallel", 19, 20))
sketch6.addConstraint(Sketcher.Constraint("Parallel", 16, 21))
sketch6.addConstraint(Sketcher.Constraint("Parallel", 21, 22))
sketch6.addConstraint(Sketcher.Constraint("Parallel", 7, 23))
sketch6.addConstraint(Sketcher.Constraint("Parallel", 22, 27))
sketch6.addConstraint(Sketcher.Constraint("Parallel", 27, 28))
sketch6.addConstraint(Sketcher.Constraint("Parallel", 24, 29))
sketch6.addConstraint(Sketcher.Constraint("Parallel", 29, 30))
sketch6.addConstraint(Sketcher.Constraint("Parallel", 23, 31))
sketch6.addConstraint(Sketcher.Constraint("Equal", 4, 8))
sketch6.addConstraint(Sketcher.Constraint("Equal", 16, 21))
sketch6.addConstraint(Sketcher.Constraint("Angle", 7, Q("-120 deg")))
sketch6.addConstraint(Sketcher.Constraint("Angle", 25, Q("45 deg")))
sketch6.addConstraint(Sketcher.Constraint("DistanceY", 26, 2, -1, 1, Q("199 mm")))
sketch6.addConstraint(Sketcher.Constraint("DistanceX", 0, 2, -1, 1, Q("14.95 mm")))
sketch6.addConstraint(Sketcher.Constraint("Distance", 20, Q("3.635599 mm")))
sketch6.addConstraint(Sketcher.Constraint("DistanceY", 1, 1, 1, 2, Q("39.24927 mm")))
sketch6.addConstraint(Sketcher.Constraint("DistanceY", 18, 2, -1, 1, Q("143.4901 mm")))
sketch6.addConstraint(Sketcher.Constraint("DistanceX", 31, 2, -1, 1, Q("112.9145 mm")))
sketch6.addConstraint(Sketcher.Constraint("DistanceY", 7, 2, 6, 2, Q("52.858599 mm")))
sketch6.addConstraint(Sketcher.Constraint("DistanceX", 13, 2, 9, 2, Q("3.9886 mm")))
sketch6.addConstraint(Sketcher.Constraint("DistanceY", 13, 2, 15, 2, Q("13.413402 mm")))
sketch6.addConstraint(Sketcher.Constraint("DistanceY", 19, 2, 16, 2, Q("6.999101 mm")))
sketch6.addConstraint(Sketcher.Constraint("DistanceX", 20, 2, 13, 2, Q("26.8778 mm")))
sketch6.addConstraint(Sketcher.Constraint("DistanceX", 23, 2, 18, 2, Q("44.865399 mm")))
sketch6.addConstraint(Sketcher.Constraint("DistanceX", 24, 2, 25, 2, Q("3.694299 mm")))
sketch6.addConstraint(Sketcher.Constraint("DistanceY", 27, 2, 29, 2, Q("10.5012 mm")))
sketch6.addConstraint(Sketcher.Constraint("Distance", 2, Q("12.839271 mm")))
sketch6.addConstraint(Sketcher.Constraint("Distance", 3, Q("43.367968 mm")))
sketch6.addConstraint(Sketcher.Constraint("Distance", 9, Q("4.469912 mm")))
sketch6.addConstraint(Sketcher.Constraint("Distance", 10, Q("51.166529 mm")))
sketch6.addConstraint(Sketcher.Constraint("Distance", 12, Q("4.305852 mm")))
sketch6.addConstraint(Sketcher.Constraint("Distance", 13, Q("29.15782 mm")))
sketch6.addConstraint(Sketcher.Constraint("Distance", 15, Q("20.618461 mm")))
sketch6.addConstraint(Sketcher.Constraint("Distance", 17, Q("19.052431 mm")))
sketch6.addConstraint(Sketcher.Constraint("Distance", 19, Q("17.254682 mm")))
sketch6.addConstraint(Sketcher.Constraint("Distance", 22, Q("33.002582 mm")))
sketch6.addConstraint(Sketcher.Constraint("Distance", 23, Q("61.700661 mm")))
sketch6.addConstraint(Sketcher.Constraint("Distance", 24, Q("25.698629 mm")))
sketch6.addConstraint(Sketcher.Constraint("Distance", 27, Q("2.091579 mm")))
sketch6.addConstraint(Sketcher.Constraint("Distance", 28, Q("33.148309 mm")))
sketch6.addConstraint(Sketcher.Constraint("Distance", 31, Q("5.607879 mm")))
sketch6.addConstraint(Sketcher.Constraint("DistanceY", 0, 2, -1, 1, Q("71.844332 mm")))
sketch6.addConstraint(Sketcher.Constraint("DistanceX", 2, 2, -1, 1, Q("19.146348 mm")))
sketch6.addConstraint(Sketcher.Constraint("DistanceX", 5, 2, -1, 1, Q("15.413378 mm")))
sketch6.addConstraint(Sketcher.Constraint("DistanceX", 6, 2, -1, 1, Q("27.957868 mm")))
sketch6.addConstraint(Sketcher.Constraint("DistanceY", 11, 2, -1, 1, Q("94.476691 mm")))
sketch6.addConstraint(Sketcher.Constraint("DistanceX", 17, 2, -1, 1, Q("53.243789 mm")))
sketch6.addConstraint(Sketcher.Constraint("DistanceY", 25, 2, -1, 1, Q("153.464848 mm")))
sketch6.addConstraint(Sketcher.Constraint("DistanceY", 5, 2, 6, 2, Q("20.343418 mm")))
pocket3 = body.newObject("PartDesign::Pocket", "Pocket002")
pocket3.Profile = sketch6
pocket3.Length = 501.836795
pocket3.Midplane = True
doc.recompute()

mirrored2 = body.newObject("PartDesign::Mirrored", "Mirrored001")
mirrored2.Originals = [pocket3]
mirrored2.MirrorPlane = (doc.getObject("XZ_Plane"), [""])
body.Tip = mirrored2

doc.recompute()
